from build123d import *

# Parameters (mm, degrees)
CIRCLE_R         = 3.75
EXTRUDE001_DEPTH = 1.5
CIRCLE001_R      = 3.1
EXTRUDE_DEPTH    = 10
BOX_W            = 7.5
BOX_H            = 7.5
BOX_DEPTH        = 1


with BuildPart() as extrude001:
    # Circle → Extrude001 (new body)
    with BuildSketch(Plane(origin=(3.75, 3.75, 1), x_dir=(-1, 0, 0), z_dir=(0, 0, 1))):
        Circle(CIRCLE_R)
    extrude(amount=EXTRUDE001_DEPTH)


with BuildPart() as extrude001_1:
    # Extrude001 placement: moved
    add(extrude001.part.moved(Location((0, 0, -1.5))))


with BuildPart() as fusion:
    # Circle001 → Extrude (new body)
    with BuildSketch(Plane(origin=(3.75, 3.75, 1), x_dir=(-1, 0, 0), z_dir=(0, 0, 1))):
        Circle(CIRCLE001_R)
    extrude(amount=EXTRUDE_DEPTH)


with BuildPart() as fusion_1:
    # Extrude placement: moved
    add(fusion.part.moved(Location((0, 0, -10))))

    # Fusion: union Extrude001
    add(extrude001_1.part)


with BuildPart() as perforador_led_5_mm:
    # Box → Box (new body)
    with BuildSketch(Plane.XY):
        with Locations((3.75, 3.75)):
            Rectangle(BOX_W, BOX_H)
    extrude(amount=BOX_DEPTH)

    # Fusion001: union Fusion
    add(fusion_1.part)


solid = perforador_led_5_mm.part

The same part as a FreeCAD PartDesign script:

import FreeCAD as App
import Part
import Sketcher
from FreeCAD import Vector
Q = App.Units.Quantity

doc = App.newDocument("Part")
params = doc.addObject("Spreadsheet::Sheet", "Params")
for row, (alias, value) in enumerate([
    ("sketch1_diameter", "7.5 mm"),
    ("pad1_length", "1.5 mm"),
    ("sketch2_diameter", "6.2 mm"),
    ("pad2_length", "10 mm"),
    ("sketch3_width", "7.5 mm"),
    ("pad3_length", "1 mm"),
], start=1):
    params.set(f"A{row}", alias)
    params.set(f"B{row}", "=" + value)
    params.setAlias(f"B{row}", alias)

body = doc.addObject("PartDesign::Body", "Body")

# Sketch on XY plane
sketch1 = doc.addObject("Sketcher::SketchObject", "Sketch")
body.addObject(sketch1)
sketch1.AttachmentSupport = (doc.XY_Plane, [""])
sketch1.MapMode = "FlatFace"
sketch1.AttachmentOffset = App.Placement(Vector(0, 0, 1), App.Rotation())
sketch1.addGeometry(Part.Circle(Vector(3.8, 3.8, 0), Vector(0, 0, 1), 3.8), False)
sketch1.addConstraint([
    Sketcher.Constraint("Diameter", 0, Q("7.5 mm")),
    Sketcher.Constraint("DistanceX", -1, 1, 0, 3, Q("3.75 mm")),
    Sketcher.Constraint("DistanceY", -1, 1, 0, 3, Q("3.75 mm")),
])
sketch1.setExpression("Constraints[0]", "Params.sketch1_diameter")
pad1 = doc.addObject("PartDesign::Pad", "Pad")
body.addObject(pad1)
pad1.Profile = sketch1
pad1.setExpression("Length", "Params.pad1_length")
body2 = doc.addObject("PartDesign::Body", "Body001")
doc.recompute()

body.Placement = App.Placement(Vector(0, 0, -1.5), App.Rotation(Vector(0, 0, 1), 0))
boolean = doc.addObject("PartDesign::Boolean", "Boolean")
body2.addObject(boolean)
boolean.Type = "Fuse"
boolean.addObjects([body])
body3 = doc.addObject("PartDesign::Body", "Body002")

# Sketch on XY plane
sketch2 = doc.addObject("Sketcher::SketchObject", "Sketch001")
body3.addObject(sketch2)
sketch2.AttachmentSupport = (doc.getObject("XY_Plane002"), [""])
sketch2.MapMode = "FlatFace"
sketch2.AttachmentOffset = App.Placement(Vector(0, 0, 1), App.Rotation())
sketch2.addGeometry(Part.Circle(Vector(3.8, 3.8, 0), Vector(0, 0, 1), 3.1), False)
sketch2.addConstraint([
    Sketcher.Constraint("Diameter", 0, Q("6.2 mm")),
    Sketcher.Constraint("DistanceX", -1, 1, 0, 3, Q("3.75 mm")),
    Sketcher.Constraint("DistanceY", -1, 1, 0, 3, Q("3.75 mm")),
])
sketch2.setExpression("Constraints[0]", "Params.sketch2_diameter")
pad2 = doc.addObject("PartDesign::Pad", "Pad001")
body3.addObject(pad2)
pad2.Profile = sketch2
pad2.setExpression("Length", "Params.pad2_length")
body4 = doc.addObject("PartDesign::Body", "Body003")
doc.recompute()

body3.Placement = App.Placement(Vector(0, 0, -10), App.Rotation(Vector(0, 0, 1), 0))
boolean2 = doc.addObject("PartDesign::Boolean", "Boolean001")
body4.addObject(boolean2)
boolean2.Type = "Fuse"
boolean2.addObjects([body3])
doc.recompute()

boolean3 = doc.addObject("PartDesign::Boolean", "Boolean002")
body4.addObject(boolean3)
boolean3.Type = "Fuse"
boolean3.addObjects([body2])
body5 = doc.addObject("PartDesign::Body", "Body004")

# Sketch on XY plane
sketch3 = doc.addObject("Sketcher::SketchObject", "Sketch002")
body5.addObject(sketch3)
sketch3.AttachmentSupport = (doc.getObject("XY_Plane004"), [""])
sketch3.MapMode = "FlatFace"
sketch3.addGeometry([
    Part.LineSegment(Vector(0, 8, 0), Vector(0, 0, 0)),
    Part.LineSegment(Vector(0, 0, 0), Vector(8, 0, 0)),
    Part.LineSegment(Vector(8, 0, 0), Vector(8, 8, 0)),
    Part.LineSegment(Vector(8, 8, 0), Vector(0, 8, 0)),
], False)
sketch3.addConstraint([
    Sketcher.Constraint("Coincident", 0, 2, 1, 1),
    Sketcher.Constraint("Coincident", 1, 2, 2, 1),
    Sketcher.Constraint("Coincident", 2, 2, 3, 1),
    Sketcher.Constraint("Coincident", 3, 2, 0, 1),
    Sketcher.Constraint("Vertical", 0),
    Sketcher.Constraint("Horizontal", 1),
    Sketcher.Constraint("Vertical", 2),
    Sketcher.Constraint("Horizontal", 3),
    Sketcher.Constraint("Coincident", 0, 2, -1, 1),
    Sketcher.Constraint("Equal", 3, 0),
    Sketcher.Constraint("DistanceX", 1, 1, 1, 2, Q("7.5 mm")),
])
sketch3.setExpression("Constraints[10]", "Params.sketch3_width")
pad3 = doc.addObject("PartDesign::Pad", "Pad002")
body5.addObject(pad3)
pad3.Profile = sketch3
pad3.setExpression("Length", "Params.pad3_length")
doc.recompute()

boolean4 = doc.addObject("PartDesign::Boolean", "Boolean003")
body5.addObject(boolean4)
boolean4.Type = "Fuse"
boolean4.addObjects([body4])

doc.recompute()
